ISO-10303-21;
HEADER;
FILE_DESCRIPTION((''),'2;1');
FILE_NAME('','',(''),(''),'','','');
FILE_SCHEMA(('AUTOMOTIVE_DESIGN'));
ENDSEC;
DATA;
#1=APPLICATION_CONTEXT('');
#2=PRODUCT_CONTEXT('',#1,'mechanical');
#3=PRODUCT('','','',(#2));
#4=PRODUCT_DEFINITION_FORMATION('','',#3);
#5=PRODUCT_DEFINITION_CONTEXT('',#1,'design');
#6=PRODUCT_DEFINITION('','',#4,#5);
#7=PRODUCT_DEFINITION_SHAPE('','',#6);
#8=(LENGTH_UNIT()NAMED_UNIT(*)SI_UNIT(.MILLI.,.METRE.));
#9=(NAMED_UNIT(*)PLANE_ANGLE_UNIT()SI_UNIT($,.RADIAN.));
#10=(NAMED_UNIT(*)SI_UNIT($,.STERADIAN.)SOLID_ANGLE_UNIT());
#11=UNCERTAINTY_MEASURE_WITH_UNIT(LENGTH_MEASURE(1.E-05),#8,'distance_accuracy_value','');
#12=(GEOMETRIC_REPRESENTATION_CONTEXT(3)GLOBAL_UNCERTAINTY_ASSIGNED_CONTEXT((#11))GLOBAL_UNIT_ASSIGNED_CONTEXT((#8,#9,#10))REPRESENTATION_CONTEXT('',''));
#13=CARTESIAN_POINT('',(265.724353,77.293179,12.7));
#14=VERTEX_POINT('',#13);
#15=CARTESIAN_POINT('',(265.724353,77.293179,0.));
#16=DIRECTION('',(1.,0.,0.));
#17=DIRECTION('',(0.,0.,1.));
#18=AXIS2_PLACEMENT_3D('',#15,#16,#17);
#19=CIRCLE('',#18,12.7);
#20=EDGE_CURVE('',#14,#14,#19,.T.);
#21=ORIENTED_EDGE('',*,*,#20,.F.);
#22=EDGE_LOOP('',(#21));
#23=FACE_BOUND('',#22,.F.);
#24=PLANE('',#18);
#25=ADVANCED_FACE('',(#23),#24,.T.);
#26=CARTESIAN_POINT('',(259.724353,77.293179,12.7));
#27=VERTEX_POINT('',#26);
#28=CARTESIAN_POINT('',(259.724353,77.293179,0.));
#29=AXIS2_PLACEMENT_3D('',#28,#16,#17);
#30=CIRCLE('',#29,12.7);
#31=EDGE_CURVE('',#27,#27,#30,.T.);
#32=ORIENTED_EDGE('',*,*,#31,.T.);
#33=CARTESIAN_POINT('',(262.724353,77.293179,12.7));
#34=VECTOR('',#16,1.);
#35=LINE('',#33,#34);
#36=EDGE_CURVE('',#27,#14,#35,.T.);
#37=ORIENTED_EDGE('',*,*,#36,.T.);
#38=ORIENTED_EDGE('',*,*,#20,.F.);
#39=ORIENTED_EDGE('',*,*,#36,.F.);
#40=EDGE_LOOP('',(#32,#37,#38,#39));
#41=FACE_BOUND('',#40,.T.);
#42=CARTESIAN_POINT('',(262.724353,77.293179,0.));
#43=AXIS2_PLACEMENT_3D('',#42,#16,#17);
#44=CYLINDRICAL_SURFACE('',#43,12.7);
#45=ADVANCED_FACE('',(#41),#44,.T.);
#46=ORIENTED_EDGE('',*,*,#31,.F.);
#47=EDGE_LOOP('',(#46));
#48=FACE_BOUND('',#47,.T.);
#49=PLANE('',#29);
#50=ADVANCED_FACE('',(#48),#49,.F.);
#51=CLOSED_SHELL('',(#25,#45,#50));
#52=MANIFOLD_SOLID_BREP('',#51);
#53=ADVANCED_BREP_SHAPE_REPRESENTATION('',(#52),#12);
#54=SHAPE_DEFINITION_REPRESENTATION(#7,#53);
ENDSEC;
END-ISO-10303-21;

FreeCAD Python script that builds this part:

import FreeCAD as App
import Part
import Sketcher
from FreeCAD import Vector

doc = App.newDocument("Part")
body = doc.addObject("PartDesign::Body", "Body")

# Sketch on XY plane
sketch1 = body.newObject("Sketcher::SketchObject", "Sketch")
sketch1.AttachmentSupport = (doc.getObject("XY_Plane"), [""])
sketch1.MapMode = "FlatFace"
sketch1.addGeometry(Part.LineSegment(Vector(260, 90, 0), Vector(260, 77, 0)), False)
sketch1.addGeometry(Part.LineSegment(Vector(260, 77, 0), Vector(266, 77, 0)), False)
sketch1.addGeometry(Part.LineSegment(Vector(266, 77, 0), Vector(266, 90, 0)), False)
sketch1.addGeometry(Part.LineSegment(Vector(266, 90, 0), Vector(260, 90, 0)), False)
sketch1.addGeometry(Part.LineSegment(Vector(260, 77, 0), Vector(266, 77, 0)), True)  # axis
sketch1.addConstraint(Sketcher.Constraint("Coincident", 0, 2, 1, 1))
sketch1.addConstraint(Sketcher.Constraint("Coincident", 1, 2, 2, 1))
sketch1.addConstraint(Sketcher.Constraint("Coincident", 2, 2, 3, 1))
sketch1.addConstraint(Sketcher.Constraint("Coincident", 3, 2, 0, 1))
sketch1.addConstraint(Sketcher.Constraint("Vertical", 0))
sketch1.addConstraint(Sketcher.Constraint("Horizontal", 1))
sketch1.addConstraint(Sketcher.Constraint("Vertical", 2))
sketch1.addConstraint(Sketcher.Constraint("Horizontal", 3))
sketch1.addConstraint(Sketcher.Constraint("Horizontal", 4))
sketch1.addConstraint(Sketcher.Constraint("Coincident", 4, 1, 0, 2))
sketch1.addConstraint(Sketcher.Constraint("Vertical", 2, 2, 4, 2))
sketch1.addConstraint(Sketcher.Constraint("DistanceX", 1, 1, 1, 2, 6.0))
sketch1.addConstraint(Sketcher.Constraint("DistanceY", 0, 2, 0, 1, 12.7))
sketch1.addConstraint(Sketcher.Constraint("DistanceY", -1, 1, 0, 2, 77.293179))
sketch1.addConstraint(Sketcher.Constraint("DistanceX", -1, 1, 0, 2, 259.724353))
revolution = body.newObject("PartDesign::Revolution", "Revolution")
revolution.Profile = sketch1
revolution.ReferenceAxis = (sketch1, ["Axis0"])
revolution.Angle = 360

doc.recompute()
